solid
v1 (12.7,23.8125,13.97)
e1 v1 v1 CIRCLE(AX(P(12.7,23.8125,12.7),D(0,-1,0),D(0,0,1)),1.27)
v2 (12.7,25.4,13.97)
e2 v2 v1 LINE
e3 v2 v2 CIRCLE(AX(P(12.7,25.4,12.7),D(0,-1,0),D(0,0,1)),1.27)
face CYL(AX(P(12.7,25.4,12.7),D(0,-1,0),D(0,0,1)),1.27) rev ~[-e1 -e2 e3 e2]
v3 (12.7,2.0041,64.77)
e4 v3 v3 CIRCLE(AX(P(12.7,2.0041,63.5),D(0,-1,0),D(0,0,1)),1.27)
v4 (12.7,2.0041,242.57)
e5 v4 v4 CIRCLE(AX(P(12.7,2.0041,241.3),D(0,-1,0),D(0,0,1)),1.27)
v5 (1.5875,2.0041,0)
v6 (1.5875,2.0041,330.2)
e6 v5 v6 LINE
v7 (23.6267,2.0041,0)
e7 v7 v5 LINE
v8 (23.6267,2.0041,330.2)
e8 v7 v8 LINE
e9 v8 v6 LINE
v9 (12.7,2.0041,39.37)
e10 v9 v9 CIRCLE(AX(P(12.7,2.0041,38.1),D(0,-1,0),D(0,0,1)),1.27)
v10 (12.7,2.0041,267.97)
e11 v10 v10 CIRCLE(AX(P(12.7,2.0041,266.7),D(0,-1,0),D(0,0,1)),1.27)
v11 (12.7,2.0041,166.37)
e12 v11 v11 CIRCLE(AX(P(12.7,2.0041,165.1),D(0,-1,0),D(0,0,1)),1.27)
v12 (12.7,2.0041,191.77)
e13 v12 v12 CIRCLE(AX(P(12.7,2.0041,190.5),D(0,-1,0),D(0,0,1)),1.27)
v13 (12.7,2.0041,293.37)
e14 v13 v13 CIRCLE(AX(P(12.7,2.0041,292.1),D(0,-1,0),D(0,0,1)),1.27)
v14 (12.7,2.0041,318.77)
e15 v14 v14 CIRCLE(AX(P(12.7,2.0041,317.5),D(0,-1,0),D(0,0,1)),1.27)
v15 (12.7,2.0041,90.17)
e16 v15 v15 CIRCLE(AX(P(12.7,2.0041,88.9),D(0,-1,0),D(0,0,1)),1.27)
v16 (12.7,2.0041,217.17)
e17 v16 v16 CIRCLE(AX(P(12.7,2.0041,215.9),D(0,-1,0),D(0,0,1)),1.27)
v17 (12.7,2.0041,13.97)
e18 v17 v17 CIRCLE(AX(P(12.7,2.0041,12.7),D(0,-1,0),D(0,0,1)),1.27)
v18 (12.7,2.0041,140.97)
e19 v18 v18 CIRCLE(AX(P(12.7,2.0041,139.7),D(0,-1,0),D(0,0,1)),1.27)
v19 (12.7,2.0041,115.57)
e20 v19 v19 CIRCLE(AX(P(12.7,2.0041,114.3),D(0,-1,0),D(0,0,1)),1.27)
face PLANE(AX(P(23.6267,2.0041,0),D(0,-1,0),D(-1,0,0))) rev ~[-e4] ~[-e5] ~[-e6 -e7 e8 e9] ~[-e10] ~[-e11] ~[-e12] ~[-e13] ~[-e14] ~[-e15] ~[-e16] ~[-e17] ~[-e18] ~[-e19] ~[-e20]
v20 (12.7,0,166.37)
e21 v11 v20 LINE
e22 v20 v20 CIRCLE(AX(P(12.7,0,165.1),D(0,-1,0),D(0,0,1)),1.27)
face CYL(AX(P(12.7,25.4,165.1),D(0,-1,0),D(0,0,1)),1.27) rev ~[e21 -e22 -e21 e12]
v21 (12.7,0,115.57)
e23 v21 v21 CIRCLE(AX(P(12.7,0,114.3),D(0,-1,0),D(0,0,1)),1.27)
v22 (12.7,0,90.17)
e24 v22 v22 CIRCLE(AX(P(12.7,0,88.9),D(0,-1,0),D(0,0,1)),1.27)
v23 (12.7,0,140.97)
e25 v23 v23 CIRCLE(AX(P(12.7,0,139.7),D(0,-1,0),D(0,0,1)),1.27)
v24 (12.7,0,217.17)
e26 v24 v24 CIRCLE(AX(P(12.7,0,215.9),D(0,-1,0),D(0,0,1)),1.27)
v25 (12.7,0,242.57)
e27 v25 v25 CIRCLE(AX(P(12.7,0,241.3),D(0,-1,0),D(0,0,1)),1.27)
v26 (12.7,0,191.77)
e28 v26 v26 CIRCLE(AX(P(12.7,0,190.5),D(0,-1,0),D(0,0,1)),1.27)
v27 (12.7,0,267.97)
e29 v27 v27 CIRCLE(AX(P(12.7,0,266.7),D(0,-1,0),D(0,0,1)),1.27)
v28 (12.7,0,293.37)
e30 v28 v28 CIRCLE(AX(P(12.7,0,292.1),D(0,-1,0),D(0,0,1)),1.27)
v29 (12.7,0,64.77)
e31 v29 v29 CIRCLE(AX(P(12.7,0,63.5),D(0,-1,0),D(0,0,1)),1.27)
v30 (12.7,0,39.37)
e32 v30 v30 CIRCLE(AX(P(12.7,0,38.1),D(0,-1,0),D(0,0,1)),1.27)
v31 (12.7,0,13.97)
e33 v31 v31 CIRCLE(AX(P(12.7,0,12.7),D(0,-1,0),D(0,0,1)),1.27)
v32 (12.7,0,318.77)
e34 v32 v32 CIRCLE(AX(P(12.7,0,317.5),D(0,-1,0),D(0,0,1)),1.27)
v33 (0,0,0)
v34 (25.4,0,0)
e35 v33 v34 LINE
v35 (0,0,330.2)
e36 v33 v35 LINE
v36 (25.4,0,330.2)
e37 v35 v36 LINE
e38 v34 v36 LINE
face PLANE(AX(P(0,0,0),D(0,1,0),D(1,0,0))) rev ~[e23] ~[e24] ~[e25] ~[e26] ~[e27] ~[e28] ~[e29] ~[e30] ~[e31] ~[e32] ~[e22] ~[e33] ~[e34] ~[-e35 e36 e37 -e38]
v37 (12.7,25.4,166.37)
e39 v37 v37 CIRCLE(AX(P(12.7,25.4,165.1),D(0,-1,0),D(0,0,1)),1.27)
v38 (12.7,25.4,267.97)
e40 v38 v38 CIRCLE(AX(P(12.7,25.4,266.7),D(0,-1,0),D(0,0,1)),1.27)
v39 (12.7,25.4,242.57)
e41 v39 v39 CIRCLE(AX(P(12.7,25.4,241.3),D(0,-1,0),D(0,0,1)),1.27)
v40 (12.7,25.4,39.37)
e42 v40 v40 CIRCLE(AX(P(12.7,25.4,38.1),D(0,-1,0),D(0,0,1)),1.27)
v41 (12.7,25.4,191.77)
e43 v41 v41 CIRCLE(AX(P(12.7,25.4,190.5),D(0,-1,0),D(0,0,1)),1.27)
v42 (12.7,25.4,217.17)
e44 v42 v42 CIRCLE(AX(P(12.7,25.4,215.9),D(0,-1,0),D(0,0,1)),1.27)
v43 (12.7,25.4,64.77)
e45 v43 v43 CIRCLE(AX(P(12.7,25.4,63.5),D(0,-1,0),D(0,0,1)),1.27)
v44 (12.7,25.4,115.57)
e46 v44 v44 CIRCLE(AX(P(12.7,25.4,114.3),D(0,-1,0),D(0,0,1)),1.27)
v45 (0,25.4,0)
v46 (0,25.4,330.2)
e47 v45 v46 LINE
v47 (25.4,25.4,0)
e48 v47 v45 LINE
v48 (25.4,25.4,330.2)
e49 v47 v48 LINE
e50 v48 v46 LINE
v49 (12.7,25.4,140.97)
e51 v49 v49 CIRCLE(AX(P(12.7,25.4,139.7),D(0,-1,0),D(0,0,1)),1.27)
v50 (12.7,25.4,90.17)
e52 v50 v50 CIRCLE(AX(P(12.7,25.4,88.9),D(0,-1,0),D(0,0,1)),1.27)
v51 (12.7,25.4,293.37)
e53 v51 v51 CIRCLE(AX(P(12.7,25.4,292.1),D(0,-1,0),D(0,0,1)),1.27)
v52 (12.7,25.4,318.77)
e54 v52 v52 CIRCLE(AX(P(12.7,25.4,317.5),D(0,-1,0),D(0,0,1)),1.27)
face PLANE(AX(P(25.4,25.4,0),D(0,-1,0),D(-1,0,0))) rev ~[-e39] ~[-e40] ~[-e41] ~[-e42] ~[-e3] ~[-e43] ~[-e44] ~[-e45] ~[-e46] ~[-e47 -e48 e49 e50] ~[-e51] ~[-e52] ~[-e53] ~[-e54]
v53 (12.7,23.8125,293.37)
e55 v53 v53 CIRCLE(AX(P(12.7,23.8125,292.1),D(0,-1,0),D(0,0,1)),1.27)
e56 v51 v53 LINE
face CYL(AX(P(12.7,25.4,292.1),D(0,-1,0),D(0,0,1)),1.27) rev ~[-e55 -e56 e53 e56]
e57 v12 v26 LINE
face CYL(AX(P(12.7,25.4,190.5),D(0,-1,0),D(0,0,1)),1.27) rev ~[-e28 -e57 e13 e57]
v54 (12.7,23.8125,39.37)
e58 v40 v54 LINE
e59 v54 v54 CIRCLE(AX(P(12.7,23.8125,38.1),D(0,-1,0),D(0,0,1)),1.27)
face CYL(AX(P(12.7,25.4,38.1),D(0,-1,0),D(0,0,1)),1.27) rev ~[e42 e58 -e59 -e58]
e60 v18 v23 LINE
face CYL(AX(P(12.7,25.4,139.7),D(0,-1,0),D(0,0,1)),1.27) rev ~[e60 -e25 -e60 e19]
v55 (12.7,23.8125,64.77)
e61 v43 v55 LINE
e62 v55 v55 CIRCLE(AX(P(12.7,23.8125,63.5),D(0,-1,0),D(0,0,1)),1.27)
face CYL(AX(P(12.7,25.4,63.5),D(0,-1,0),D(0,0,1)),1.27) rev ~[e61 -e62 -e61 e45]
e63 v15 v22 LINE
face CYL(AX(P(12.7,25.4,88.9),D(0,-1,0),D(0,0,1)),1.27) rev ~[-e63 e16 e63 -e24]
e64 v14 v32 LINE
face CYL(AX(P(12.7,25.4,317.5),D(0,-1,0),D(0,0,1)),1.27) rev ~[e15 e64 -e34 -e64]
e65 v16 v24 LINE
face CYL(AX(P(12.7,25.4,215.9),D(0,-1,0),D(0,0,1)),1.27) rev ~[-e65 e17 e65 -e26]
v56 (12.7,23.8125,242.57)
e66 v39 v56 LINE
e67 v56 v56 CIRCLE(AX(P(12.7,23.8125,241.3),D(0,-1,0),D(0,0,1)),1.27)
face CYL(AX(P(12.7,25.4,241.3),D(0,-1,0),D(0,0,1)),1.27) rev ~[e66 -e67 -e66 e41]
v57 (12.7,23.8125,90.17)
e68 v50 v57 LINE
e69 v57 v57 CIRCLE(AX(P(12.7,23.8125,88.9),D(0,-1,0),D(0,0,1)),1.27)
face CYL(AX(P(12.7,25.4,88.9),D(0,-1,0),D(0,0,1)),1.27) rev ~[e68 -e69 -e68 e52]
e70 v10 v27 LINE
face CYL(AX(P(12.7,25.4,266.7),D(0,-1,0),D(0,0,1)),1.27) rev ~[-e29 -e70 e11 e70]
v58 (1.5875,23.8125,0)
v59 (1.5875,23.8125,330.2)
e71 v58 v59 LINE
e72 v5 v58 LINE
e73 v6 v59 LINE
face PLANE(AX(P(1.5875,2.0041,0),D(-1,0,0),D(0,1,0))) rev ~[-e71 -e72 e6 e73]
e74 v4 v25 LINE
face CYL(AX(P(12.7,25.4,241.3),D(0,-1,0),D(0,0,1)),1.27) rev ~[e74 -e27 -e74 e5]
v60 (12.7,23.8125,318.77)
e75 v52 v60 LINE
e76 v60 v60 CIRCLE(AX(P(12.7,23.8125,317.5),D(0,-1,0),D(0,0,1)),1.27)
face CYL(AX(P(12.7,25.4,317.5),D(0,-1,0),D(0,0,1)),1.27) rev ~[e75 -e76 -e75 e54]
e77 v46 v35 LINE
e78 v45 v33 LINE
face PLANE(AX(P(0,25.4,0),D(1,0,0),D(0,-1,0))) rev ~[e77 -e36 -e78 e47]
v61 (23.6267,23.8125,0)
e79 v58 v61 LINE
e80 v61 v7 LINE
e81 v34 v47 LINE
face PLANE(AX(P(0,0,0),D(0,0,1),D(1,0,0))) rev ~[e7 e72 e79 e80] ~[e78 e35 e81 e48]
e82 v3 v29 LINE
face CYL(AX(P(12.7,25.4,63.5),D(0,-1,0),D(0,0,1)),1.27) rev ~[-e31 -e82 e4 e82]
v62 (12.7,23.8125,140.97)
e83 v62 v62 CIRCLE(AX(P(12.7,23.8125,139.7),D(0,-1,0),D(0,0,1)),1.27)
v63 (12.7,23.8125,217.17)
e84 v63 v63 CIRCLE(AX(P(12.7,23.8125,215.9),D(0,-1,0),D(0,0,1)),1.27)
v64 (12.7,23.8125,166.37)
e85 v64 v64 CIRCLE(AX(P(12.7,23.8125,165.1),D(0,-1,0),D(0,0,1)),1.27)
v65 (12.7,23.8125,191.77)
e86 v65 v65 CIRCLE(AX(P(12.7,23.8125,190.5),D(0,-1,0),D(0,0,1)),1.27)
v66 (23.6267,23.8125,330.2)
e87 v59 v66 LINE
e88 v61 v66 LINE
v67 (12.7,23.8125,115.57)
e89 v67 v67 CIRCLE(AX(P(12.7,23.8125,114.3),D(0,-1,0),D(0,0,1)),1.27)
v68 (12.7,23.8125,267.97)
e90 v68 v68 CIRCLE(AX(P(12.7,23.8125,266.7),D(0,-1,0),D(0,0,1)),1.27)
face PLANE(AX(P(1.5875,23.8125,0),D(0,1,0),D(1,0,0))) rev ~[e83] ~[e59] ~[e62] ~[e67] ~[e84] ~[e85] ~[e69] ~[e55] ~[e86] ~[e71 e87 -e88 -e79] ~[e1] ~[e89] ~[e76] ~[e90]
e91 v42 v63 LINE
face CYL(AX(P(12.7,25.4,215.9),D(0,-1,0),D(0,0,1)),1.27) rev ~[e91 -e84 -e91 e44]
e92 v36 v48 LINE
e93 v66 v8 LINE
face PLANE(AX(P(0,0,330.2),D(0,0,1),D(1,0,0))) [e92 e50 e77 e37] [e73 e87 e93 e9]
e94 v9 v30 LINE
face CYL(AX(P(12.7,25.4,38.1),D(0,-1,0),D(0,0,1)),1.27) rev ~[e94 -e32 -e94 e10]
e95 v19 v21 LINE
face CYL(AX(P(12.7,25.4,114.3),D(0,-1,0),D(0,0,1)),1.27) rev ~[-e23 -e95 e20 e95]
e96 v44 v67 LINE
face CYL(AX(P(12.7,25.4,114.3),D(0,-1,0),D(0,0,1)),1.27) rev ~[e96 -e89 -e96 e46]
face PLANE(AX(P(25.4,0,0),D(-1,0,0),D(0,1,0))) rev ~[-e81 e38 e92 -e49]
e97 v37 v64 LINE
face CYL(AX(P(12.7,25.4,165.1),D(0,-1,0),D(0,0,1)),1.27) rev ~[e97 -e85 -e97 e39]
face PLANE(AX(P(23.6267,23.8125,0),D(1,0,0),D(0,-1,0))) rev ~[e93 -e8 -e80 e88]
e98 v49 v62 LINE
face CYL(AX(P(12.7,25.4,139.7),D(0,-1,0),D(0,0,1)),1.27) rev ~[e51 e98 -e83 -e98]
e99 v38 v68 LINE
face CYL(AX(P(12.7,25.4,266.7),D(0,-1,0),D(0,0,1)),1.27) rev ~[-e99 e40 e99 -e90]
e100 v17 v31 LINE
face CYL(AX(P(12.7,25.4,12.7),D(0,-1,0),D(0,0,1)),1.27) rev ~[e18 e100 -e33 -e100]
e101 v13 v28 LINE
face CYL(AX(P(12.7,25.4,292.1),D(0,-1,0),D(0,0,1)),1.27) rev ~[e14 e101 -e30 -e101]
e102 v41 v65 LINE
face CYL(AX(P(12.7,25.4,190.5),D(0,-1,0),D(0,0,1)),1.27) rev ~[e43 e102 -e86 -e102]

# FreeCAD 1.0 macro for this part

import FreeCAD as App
import Part
import Sketcher
Q = App.Units.Quantity

doc = App.newDocument("Part")
body = doc.addObject("PartDesign::Body", "Body")

sketch1 = body.newObject("Sketcher::SketchObject", "Sketch")
sketch1.AttachmentSupport = (doc.getObject("XY_Plane"), [""])
sketch1.MapMode = "FlatFace"
sketch1.addGeometry(Part.LineSegment(App.Vector(0, 25, 0), App.Vector(0, 0, 0)), False)
sketch1.addGeometry(Part.LineSegment(App.Vector(0, 0, 0), App.Vector(25, 0, 0)), False)
sketch1.addGeometry(Part.LineSegment(App.Vector(25, 0, 0), App.Vector(25, 25, 0)), False)
sketch1.addGeometry(Part.LineSegment(App.Vector(25, 25, 0), App.Vector(0, 25, 0)), False)
sketch1.addGeometry(Part.LineSegment(App.Vector(2, 2, 0), App.Vector(2, 24, 0)), False)
sketch1.addGeometry(Part.LineSegment(App.Vector(2, 24, 0), App.Vector(24, 24, 0)), False)
sketch1.addGeometry(Part.LineSegment(App.Vector(24, 24, 0), App.Vector(24, 2, 0)), False)
sketch1.addGeometry(Part.LineSegment(App.Vector(24, 2, 0), App.Vector(2, 2, 0)), False)
sketch1.addConstraint(Sketcher.Constraint("Coincident", 0, 2, 1, 1))
sketch1.addConstraint(Sketcher.Constraint("Coincident", 1, 2, 2, 1))
sketch1.addConstraint(Sketcher.Constraint("Coincident", 2, 2, 3, 1))
sketch1.addConstraint(Sketcher.Constraint("Coincident", 3, 2, 0, 1))
sketch1.addConstraint(Sketcher.Constraint("Coincident", 4, 2, 5, 1))
sketch1.addConstraint(Sketcher.Constraint("Coincident", 5, 2, 6, 1))
sketch1.addConstraint(Sketcher.Constraint("Coincident", 6, 2, 7, 1))
sketch1.addConstraint(Sketcher.Constraint("Coincident", 7, 2, 4, 1))
sketch1.addConstraint(Sketcher.Constraint("Vertical", 0))
sketch1.addConstraint(Sketcher.Constraint("Horizontal", 1))
sketch1.addConstraint(Sketcher.Constraint("Vertical", 2))
sketch1.addConstraint(Sketcher.Constraint("Horizontal", 3))
sketch1.addConstraint(Sketcher.Constraint("Vertical", 4))
sketch1.addConstraint(Sketcher.Constraint("Horizontal", 5))
sketch1.addConstraint(Sketcher.Constraint("Vertical", 6))
sketch1.addConstraint(Sketcher.Constraint("Horizontal", 7))
sketch1.addConstraint(Sketcher.Constraint("Coincident", 0, 2, -1, 1))
sketch1.addConstraint(Sketcher.Constraint("Equal", 3, 0))
sketch1.addConstraint(Sketcher.Constraint("DistanceX", 1, 1, 1, 2, Q("1 in")))
sketch1.addConstraint(Sketcher.Constraint("DistanceX", -1, 1, 4, 2, Q("0.0625 in")))
sketch1.addConstraint(Sketcher.Constraint("DistanceY", 4, 2, 3, 2, Q("0.0625 in")))
sketch1.addConstraint(Sketcher.Constraint("DistanceY", 4, 1, 4, 2, Q("0.8586 in")))
sketch1.addConstraint(Sketcher.Constraint("DistanceX", 5, 1, 5, 2, 22.0392))
pad1 = body.newObject("PartDesign::Pad", "Pad")
pad1.Profile = sketch1
pad1.Length = Q("13 in")

sketch2 = body.newObject("Sketcher::SketchObject", "Sketch001")
sketch2.AttachmentSupport = (doc.getObject("XZ_Plane"), [""])
sketch2.MapMode = "FlatFace"
sketch2.AttachmentOffset = App.Placement(App.Vector(0, 0, -1 * 25.4), App.Rotation())
sketch2.addGeometry(Part.Circle(App.Vector(12.7, 12.7, 0), App.Vector(0, 0, 1), 1.3), False)
sketch2.addGeometry(Part.Circle(App.Vector(12.7, 38.1, 0), App.Vector(0, 0, 1), 1.3), False)
sketch2.addGeometry(Part.Circle(App.Vector(12.7, 63.5, 0), App.Vector(0, 0, 1), 1.3), False)
sketch2.addGeometry(Part.Circle(App.Vector(12.7, 88.9, 0), App.Vector(0, 0, 1), 1.3), False)
sketch2.addGeometry(Part.Circle(App.Vector(12.7, 114.3, 0), App.Vector(0, 0, 1), 1.3), False)
sketch2.addGeometry(Part.Circle(App.Vector(12.7, 139.7, 0), App.Vector(0, 0, 1), 1.3), False)
sketch2.addGeometry(Part.Circle(App.Vector(12.7, 165.1, 0), App.Vector(0, 0, 1), 1.3), False)
sketch2.addGeometry(Part.Circle(App.Vector(12.7, 190.5, 0), App.Vector(0, 0, 1), 1.3), False)
sketch2.addGeometry(Part.Circle(App.Vector(12.7, 215.9, 0), App.Vector(0, 0, 1), 1.3), False)
sketch2.addGeometry(Part.Circle(App.Vector(12.7, 241.3, 0), App.Vector(0, 0, 1), 1.3), False)
sketch2.addGeometry(Part.Circle(App.Vector(12.7, 266.7, 0), App.Vector(0, 0, 1), 1.3), False)
sketch2.addGeometry(Part.Circle(App.Vector(12.7, 292.1, 0), App.Vector(0, 0, 1), 1.3), False)
sketch2.addGeometry(Part.Circle(App.Vector(12.7, 317.5, 0), App.Vector(0, 0, 1), 1.3), False)
sketch2.addGeometry(Part.Circle(App.Vector(12.7, 342.9, 0), App.Vector(0, 0, 1), 1.3), False)
sketch2.addGeometry(Part.Circle(App.Vector(12.7, 368.3, 0), App.Vector(0, 0, 1), 1.3), False)
sketch2.addConstraint(Sketcher.Constraint("Equal", 0, 1))
sketch2.addConstraint(Sketcher.Constraint("Equal", 1, 2))
sketch2.addConstraint(Sketcher.Constraint("Equal", 2, 3))
sketch2.addConstraint(Sketcher.Constraint("Equal", 3, 4))
sketch2.addConstraint(Sketcher.Constraint("Equal", 4, 5))
sketch2.addConstraint(Sketcher.Constraint("Equal", 5, 6))
sketch2.addConstraint(Sketcher.Constraint("Equal", 6, 7))
sketch2.addConstraint(Sketcher.Constraint("Equal", 7, 8))
sketch2.addConstraint(Sketcher.Constraint("Equal", 8, 9))
sketch2.addConstraint(Sketcher.Constraint("Equal", 9, 10))
sketch2.addConstraint(Sketcher.Constraint("Equal", 10, 11))
sketch2.addConstraint(Sketcher.Constraint("Equal", 11, 12))
sketch2.addConstraint(Sketcher.Constraint("Equal", 12, 13))
sketch2.addConstraint(Sketcher.Constraint("Equal", 13, 14))
sketch2.addConstraint(Sketcher.Constraint("Vertical", 0, 3, 1, 3))
sketch2.addConstraint(Sketcher.Constraint("Vertical", 1, 3, 2, 3))
sketch2.addConstraint(Sketcher.Constraint("Vertical", 2, 3, 3, 3))
sketch2.addConstraint(Sketcher.Constraint("Vertical", 3, 3, 4, 3))
sketch2.addConstraint(Sketcher.Constraint("Vertical", 4, 3, 5, 3))
sketch2.addConstraint(Sketcher.Constraint("Vertical", 5, 3, 6, 3))
sketch2.addConstraint(Sketcher.Constraint("Vertical", 6, 3, 7, 3))
sketch2.addConstraint(Sketcher.Constraint("Vertical", 7, 3, 8, 3))
sketch2.addConstraint(Sketcher.Constraint("Vertical", 8, 3, 9, 3))
sketch2.addConstraint(Sketcher.Constraint("Vertical", 9, 3, 10, 3))
sketch2.addConstraint(Sketcher.Constraint("Vertical", 10, 3, 11, 3))
sketch2.addConstraint(Sketcher.Constraint("Vertical", 11, 3, 12, 3))
sketch2.addConstraint(Sketcher.Constraint("Vertical", 12, 3, 13, 3))
sketch2.addConstraint(Sketcher.Constraint("Vertical", 13, 3, 14, 3))
sketch2.addConstraint(Sketcher.Constraint("Diameter", 0, Q("0.1 in")))
sketch2.addConstraint(Sketcher.Constraint("DistanceY", 0, 3, 1, 3, Q("1 in")))
sketch2.addConstraint(Sketcher.Constraint("DistanceY", 1, 3, 2, 3, Q("1 in")))
sketch2.addConstraint(Sketcher.Constraint("DistanceY", 2, 3, 3, 3, Q("1 in")))
sketch2.addConstraint(Sketcher.Constraint("DistanceY", 3, 3, 4, 3, Q("1 in")))
sketch2.addConstraint(Sketcher.Constraint("DistanceY", 4, 3, 5, 3, Q("1 in")))
sketch2.addConstraint(Sketcher.Constraint("DistanceY", 5, 3, 6, 3, Q("1 in")))
sketch2.addConstraint(Sketcher.Constraint("DistanceY", 6, 3, 7, 3, Q("1 in")))
sketch2.addConstraint(Sketcher.Constraint("DistanceY", 7, 3, 8, 3, Q("1 in")))
sketch2.addConstraint(Sketcher.Constraint("DistanceY", 8, 3, 9, 3, Q("1 in")))
sketch2.addConstraint(Sketcher.Constraint("DistanceY", 9, 3, 10, 3, Q("1 in")))
sketch2.addConstraint(Sketcher.Constraint("DistanceY", 10, 3, 11, 3, Q("1 in")))
sketch2.addConstraint(Sketcher.Constraint("DistanceY", 11, 3, 12, 3, Q("1 in")))
sketch2.addConstraint(Sketcher.Constraint("DistanceY", 12, 3, 13, 3, Q("1 in")))
sketch2.addConstraint(Sketcher.Constraint("DistanceY", 13, 3, 14, 3, Q("1 in")))
sketch2.addConstraint(Sketcher.Constraint("DistanceX", -1, 1, 0, 3, Q("0.5 in")))
sketch2.addConstraint(Sketcher.Constraint("DistanceY", -1, 1, 0, 3, Q("0.5 in")))
doc.recompute()
hole = body.newObject("PartDesign::Hole", "Hole")
hole.Profile = sketch2
hole.ThreadType = "None"
hole.Diameter = Q("0.1 in")
hole.DepthType = "Dimension"
hole.Depth = Q("1 in")
hole.DrillPoint = "Angled"
hole.DrillPointAngle = 118
hole.Reversed = True

doc.recompute()
